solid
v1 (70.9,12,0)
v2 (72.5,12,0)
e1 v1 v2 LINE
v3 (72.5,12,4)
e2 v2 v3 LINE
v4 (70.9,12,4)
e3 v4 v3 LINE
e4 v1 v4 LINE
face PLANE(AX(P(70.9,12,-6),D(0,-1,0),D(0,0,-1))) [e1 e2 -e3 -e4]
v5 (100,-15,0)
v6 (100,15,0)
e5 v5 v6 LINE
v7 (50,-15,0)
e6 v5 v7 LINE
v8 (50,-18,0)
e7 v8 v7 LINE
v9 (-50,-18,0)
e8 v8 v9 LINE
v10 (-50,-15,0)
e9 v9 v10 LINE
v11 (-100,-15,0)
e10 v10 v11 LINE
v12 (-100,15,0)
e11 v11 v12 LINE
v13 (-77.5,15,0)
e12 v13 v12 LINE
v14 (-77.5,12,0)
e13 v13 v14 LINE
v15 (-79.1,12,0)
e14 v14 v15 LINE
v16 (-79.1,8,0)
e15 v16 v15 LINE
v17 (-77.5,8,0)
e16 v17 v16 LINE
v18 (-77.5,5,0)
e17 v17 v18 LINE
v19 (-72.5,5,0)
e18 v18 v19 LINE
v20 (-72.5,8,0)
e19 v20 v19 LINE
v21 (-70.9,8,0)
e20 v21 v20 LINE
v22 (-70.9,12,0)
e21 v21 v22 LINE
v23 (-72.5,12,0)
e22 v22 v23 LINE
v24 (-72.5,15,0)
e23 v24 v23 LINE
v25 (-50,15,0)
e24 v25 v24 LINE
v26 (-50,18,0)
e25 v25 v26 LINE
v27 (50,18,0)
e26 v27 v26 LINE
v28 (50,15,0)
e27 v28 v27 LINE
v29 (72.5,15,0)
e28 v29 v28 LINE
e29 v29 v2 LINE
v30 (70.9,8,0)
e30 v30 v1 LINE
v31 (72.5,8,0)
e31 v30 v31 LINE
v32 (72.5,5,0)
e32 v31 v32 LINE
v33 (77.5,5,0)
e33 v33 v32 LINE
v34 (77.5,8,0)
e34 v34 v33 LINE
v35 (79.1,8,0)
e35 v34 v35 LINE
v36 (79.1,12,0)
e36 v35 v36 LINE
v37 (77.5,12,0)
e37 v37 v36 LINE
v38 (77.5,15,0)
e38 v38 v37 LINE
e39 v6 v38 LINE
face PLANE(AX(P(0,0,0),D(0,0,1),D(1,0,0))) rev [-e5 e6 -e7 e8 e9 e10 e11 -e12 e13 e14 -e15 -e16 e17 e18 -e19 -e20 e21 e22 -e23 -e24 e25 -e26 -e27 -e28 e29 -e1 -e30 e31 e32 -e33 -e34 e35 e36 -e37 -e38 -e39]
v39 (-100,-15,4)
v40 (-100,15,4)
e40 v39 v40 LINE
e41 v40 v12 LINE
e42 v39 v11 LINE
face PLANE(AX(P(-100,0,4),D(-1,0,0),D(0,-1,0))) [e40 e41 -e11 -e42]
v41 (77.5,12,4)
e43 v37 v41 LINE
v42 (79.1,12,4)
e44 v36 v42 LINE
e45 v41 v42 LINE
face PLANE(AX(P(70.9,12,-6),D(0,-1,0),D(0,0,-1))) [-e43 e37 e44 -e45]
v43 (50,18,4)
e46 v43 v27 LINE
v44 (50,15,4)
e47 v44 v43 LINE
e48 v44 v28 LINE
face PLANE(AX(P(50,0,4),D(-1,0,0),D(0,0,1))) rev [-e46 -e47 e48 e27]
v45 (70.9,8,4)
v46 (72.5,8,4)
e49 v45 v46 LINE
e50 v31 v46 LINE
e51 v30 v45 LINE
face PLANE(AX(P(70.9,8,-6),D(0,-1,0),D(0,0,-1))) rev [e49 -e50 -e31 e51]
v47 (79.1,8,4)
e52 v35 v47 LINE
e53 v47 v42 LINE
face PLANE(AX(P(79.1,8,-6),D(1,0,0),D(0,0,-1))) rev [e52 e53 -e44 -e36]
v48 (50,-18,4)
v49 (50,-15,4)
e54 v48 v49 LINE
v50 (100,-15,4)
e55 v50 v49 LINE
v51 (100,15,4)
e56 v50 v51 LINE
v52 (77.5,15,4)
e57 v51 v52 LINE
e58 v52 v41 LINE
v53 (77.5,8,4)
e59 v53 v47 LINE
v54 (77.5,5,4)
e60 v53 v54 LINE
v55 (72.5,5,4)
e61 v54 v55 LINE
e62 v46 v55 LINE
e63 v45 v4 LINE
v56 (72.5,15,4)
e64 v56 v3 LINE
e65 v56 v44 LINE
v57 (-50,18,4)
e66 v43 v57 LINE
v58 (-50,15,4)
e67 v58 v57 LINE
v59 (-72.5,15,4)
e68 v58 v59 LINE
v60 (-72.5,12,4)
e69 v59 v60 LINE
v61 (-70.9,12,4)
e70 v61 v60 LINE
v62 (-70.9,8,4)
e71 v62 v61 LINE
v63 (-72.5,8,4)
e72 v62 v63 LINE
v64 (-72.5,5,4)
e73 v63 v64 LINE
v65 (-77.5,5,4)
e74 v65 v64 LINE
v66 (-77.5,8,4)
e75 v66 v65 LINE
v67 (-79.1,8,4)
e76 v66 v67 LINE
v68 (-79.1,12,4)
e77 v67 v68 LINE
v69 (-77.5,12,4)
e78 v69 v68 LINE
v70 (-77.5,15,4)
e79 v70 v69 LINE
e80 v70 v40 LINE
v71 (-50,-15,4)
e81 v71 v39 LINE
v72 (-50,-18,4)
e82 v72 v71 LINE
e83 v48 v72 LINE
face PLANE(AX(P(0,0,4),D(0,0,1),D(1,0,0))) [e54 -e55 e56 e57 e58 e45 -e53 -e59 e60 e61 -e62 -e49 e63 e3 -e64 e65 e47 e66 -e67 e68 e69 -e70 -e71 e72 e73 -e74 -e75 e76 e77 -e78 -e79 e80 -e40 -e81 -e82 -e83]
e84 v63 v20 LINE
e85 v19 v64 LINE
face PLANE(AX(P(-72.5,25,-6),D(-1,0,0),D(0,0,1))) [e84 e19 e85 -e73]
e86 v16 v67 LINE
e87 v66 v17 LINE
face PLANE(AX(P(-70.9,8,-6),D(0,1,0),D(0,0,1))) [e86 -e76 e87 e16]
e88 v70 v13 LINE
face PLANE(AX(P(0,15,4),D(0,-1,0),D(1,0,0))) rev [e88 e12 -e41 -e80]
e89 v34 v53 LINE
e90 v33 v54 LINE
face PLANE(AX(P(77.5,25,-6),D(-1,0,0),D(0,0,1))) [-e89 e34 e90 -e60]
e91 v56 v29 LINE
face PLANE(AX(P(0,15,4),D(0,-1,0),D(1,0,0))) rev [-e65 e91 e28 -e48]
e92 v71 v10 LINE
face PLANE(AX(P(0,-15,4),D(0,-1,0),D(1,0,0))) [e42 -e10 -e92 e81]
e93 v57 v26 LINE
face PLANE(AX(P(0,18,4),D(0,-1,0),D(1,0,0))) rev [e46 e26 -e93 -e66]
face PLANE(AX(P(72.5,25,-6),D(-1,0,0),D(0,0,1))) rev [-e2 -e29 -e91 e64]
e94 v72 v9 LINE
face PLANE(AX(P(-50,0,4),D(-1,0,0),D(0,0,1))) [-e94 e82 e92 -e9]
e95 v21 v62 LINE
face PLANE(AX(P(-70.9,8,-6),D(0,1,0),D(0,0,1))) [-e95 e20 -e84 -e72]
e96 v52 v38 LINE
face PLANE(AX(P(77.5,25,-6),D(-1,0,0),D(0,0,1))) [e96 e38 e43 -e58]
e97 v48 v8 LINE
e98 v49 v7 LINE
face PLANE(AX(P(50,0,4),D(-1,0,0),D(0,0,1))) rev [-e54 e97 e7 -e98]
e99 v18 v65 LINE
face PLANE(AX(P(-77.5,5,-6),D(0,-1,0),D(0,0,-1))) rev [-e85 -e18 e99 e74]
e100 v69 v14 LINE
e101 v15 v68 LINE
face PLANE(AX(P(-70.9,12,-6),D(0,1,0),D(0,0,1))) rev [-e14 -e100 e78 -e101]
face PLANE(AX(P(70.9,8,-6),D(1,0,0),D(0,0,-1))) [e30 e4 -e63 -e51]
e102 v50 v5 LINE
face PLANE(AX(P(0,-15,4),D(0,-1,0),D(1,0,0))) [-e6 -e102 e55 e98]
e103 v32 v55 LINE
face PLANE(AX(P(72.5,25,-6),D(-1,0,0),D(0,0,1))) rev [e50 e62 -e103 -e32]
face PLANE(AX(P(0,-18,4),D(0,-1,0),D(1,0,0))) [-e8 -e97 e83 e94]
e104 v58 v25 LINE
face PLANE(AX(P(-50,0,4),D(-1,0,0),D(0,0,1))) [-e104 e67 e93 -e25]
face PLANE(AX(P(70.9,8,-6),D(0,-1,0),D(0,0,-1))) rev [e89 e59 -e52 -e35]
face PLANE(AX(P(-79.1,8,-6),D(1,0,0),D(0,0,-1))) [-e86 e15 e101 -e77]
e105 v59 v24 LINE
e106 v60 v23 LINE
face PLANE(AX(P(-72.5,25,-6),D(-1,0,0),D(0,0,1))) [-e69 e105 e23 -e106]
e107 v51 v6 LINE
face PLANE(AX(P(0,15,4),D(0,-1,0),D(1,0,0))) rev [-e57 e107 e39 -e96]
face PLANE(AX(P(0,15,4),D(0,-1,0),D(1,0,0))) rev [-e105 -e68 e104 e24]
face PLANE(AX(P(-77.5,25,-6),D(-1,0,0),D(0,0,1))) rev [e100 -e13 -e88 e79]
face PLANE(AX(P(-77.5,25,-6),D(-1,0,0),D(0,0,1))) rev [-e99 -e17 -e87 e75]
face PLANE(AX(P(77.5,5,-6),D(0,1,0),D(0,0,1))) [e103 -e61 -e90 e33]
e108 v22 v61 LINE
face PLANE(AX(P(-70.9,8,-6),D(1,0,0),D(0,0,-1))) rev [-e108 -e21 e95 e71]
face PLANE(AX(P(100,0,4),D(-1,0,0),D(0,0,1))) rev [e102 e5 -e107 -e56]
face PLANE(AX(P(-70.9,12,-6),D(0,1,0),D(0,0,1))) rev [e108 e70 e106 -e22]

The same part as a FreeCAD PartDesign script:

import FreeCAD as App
import Part
import Sketcher
Q = App.Units.Quantity

doc = App.newDocument("Part")
params = doc.addObject("Spreadsheet::Sheet", "Params")
for row, (alias, value) in enumerate([
    ("sketch1_width", "50 mm"),
    ("sketch1_width2", "100 mm"),
    ("sketch1_height", "30 mm"),
    ("sketch1_height2", "3 mm"),
    ("pad1_length", "4 mm"),
    ("sketch2_width", "5 mm"),
    ("sketch2_height", "3 mm"),
    ("sketch2_height2", "4 mm"),
    ("sketch2_height3", "13 mm"),
    ("sketch2_width2", "1.6 mm"),
    ("pocket1_length", "10 mm"),
], start=1):
    params.set(f"A{row}", alias)
    params.set(f"B{row}", "=" + value)
    params.setAlias(f"B{row}", alias)

body = doc.addObject("PartDesign::Body", "Body")

sketch1 = body.newObject("Sketcher::SketchObject", "Sketch")
sketch1.AttachmentSupport = (doc.getObject("XY_Plane"), [""])
sketch1.MapMode = "FlatFace"
sketch1.addGeometry([
    Part.LineSegment(App.Vector(-100, 15, 0), App.Vector(-100, -15, 0)),
    Part.LineSegment(App.Vector(-100, -15, 0), App.Vector(-50, -15, 0)),
    Part.LineSegment(App.Vector(-50, -15, 0), App.Vector(-50, -18, 0)),
    Part.LineSegment(App.Vector(-50, -18, 0), App.Vector(50, -18, 0)),
    Part.LineSegment(App.Vector(50, -18, 0), App.Vector(50, -15, 0)),
    Part.LineSegment(App.Vector(50, -15, 0), App.Vector(100, -15, 0)),
    Part.LineSegment(App.Vector(100, -15, 0), App.Vector(100, 15, 0)),
    Part.LineSegment(App.Vector(100, 15, 0), App.Vector(50, 15, 0)),
    Part.LineSegment(App.Vector(50, 15, 0), App.Vector(50, 18, 0)),
    Part.LineSegment(App.Vector(50, 18, 0), App.Vector(-50, 18, 0)),
    Part.LineSegment(App.Vector(-50, 18, 0), App.Vector(-50, 15, 0)),
    Part.LineSegment(App.Vector(-50, 15, 0), App.Vector(-100, 15, 0)),
], False)
sketch1.addConstraint([
    Sketcher.Constraint("Coincident", 0, 2, 1, 1),
    Sketcher.Constraint("Coincident", 1, 2, 2, 1),
    Sketcher.Constraint("Coincident", 2, 2, 3, 1),
    Sketcher.Constraint("Coincident", 3, 2, 4, 1),
    Sketcher.Constraint("Coincident", 4, 2, 5, 1),
    Sketcher.Constraint("Coincident", 5, 2, 6, 1),
    Sketcher.Constraint("Coincident", 6, 2, 7, 1),
    Sketcher.Constraint("Coincident", 7, 2, 8, 1),
    Sketcher.Constraint("Coincident", 8, 2, 9, 1),
    Sketcher.Constraint("Coincident", 9, 2, 10, 1),
    Sketcher.Constraint("Coincident", 10, 2, 11, 1),
    Sketcher.Constraint("Coincident", 11, 2, 0, 1),
    Sketcher.Constraint("Vertical", 0),
    Sketcher.Constraint("Horizontal", 1),
    Sketcher.Constraint("Vertical", 2),
    Sketcher.Constraint("Horizontal", 3),
    Sketcher.Constraint("Vertical", 4),
    Sketcher.Constraint("Horizontal", 5),
    Sketcher.Constraint("Vertical", 6),
    Sketcher.Constraint("Horizontal", 7),
    Sketcher.Constraint("Vertical", 8),
    Sketcher.Constraint("Horizontal", 9),
    Sketcher.Constraint("Vertical", 10),
    Sketcher.Constraint("Horizontal", 11),
    Sketcher.Constraint("Symmetric", 0, 2, 6, 2, -1, 1),
    Sketcher.Constraint("Symmetric", 2, 2, 8, 2, -1, 1),
    Sketcher.Constraint("Symmetric", 4, 2, 10, 2, -1, 1),
    Sketcher.Constraint("Symmetric", 1, 2, 4, 2, -2),
    Sketcher.Constraint("DistanceX", 1, 1, 1, 2, Q("50 mm")),
    Sketcher.Constraint("DistanceX", 3, 1, 3, 2, Q("100 mm")),
    Sketcher.Constraint("DistanceY", 0, 2, 0, 1, Q("30 mm")),
    Sketcher.Constraint("DistanceY", 2, 2, 2, 1, Q("3 mm")),
])
sketch1.setExpression("Constraints[28]", "Params.sketch1_width")
sketch1.setExpression("Constraints[29]", "Params.sketch1_width2")
sketch1.setExpression("Constraints[30]", "Params.sketch1_height")
sketch1.setExpression("Constraints[31]", "Params.sketch1_height2")
pad1 = body.newObject("PartDesign::Pad", "Pad")
pad1.Profile = sketch1
pad1.setExpression("Length", "Params.pad1_length")

sketch2 = body.newObject("Sketcher::SketchObject", "Sketch001")
sketch2.AttachmentSupport = (doc.getObject("XY_Plane"), [""])
sketch2.MapMode = "FlatFace"
sketch2.AttachmentOffset = App.Placement(App.Vector(0, 0, 4), App.Rotation())
sketch2.addGeometry([
    Part.LineSegment(App.Vector(-77.5, 8, 0), App.Vector(-77.5, 5, 0)),
    Part.LineSegment(App.Vector(-77.5, 5, 0), App.Vector(-72.5, 5, 0)),
    Part.LineSegment(App.Vector(-72.5, 5, 0), App.Vector(-72.5, 8, 0)),
    Part.LineSegment(App.Vector(-72.5, 8, 0), App.Vector(-70.9, 8, 0)),
    Part.LineSegment(App.Vector(-70.9, 8, 0), App.Vector(-70.9, 12, 0)),
    Part.LineSegment(App.Vector(-70.9, 12, 0), App.Vector(-72.5, 12, 0)),
    Part.LineSegment(App.Vector(-72.5, 12, 0), App.Vector(-72.5, 25, 0)),
    Part.LineSegment(App.Vector(-72.5, 25, 0), App.Vector(-77.5, 25, 0)),
    Part.LineSegment(App.Vector(-77.5, 25, 0), App.Vector(-77.5, 12, 0)),
    Part.LineSegment(App.Vector(-77.5, 12, 0), App.Vector(-79.1, 12, 0)),
    Part.LineSegment(App.Vector(-79.1, 12, 0), App.Vector(-79.1, 8, 0)),
    Part.LineSegment(App.Vector(-79.1, 8, 0), App.Vector(-77.5, 8, 0)),
], False)
sketch2.addConstraint([
    Sketcher.Constraint("Coincident", 0, 2, 1, 1),
    Sketcher.Constraint("Coincident", 1, 2, 2, 1),
    Sketcher.Constraint("Coincident", 2, 2, 3, 1),
    Sketcher.Constraint("Coincident", 3, 2, 4, 1),
    Sketcher.Constraint("Coincident", 4, 2, 5, 1),
    Sketcher.Constraint("Coincident", 5, 2, 6, 1),
    Sketcher.Constraint("Coincident", 6, 2, 7, 1),
    Sketcher.Constraint("Coincident", 7, 2, 8, 1),
    Sketcher.Constraint("Coincident", 8, 2, 9, 1),
    Sketcher.Constraint("Coincident", 9, 2, 10, 1),
    Sketcher.Constraint("Coincident", 10, 2, 11, 1),
    Sketcher.Constraint("Coincident", 11, 2, 0, 1),
    Sketcher.Constraint("Vertical", 0),
    Sketcher.Constraint("Horizontal", 1),
    Sketcher.Constraint("Vertical", 2),
    Sketcher.Constraint("Horizontal", 3),
    Sketcher.Constraint("Vertical", 4),
    Sketcher.Constraint("Horizontal", 5),
    Sketcher.Constraint("Vertical", 6),
    Sketcher.Constraint("Horizontal", 7),
    Sketcher.Constraint("Vertical", 8),
    Sketcher.Constraint("Horizontal", 9),
    Sketcher.Constraint("Vertical", 10),
    Sketcher.Constraint("Horizontal", 11),
    Sketcher.Constraint("Horizontal", 5, 2, 8, 2),
    Sketcher.Constraint("Horizontal", 3, 2, 10, 2),
    Sketcher.Constraint("Vertical", 2, 2, 5, 2),
    Sketcher.Constraint("Vertical", 0, 2, 7, 2),
    Sketcher.Constraint("Equal", 5, 9),
    Sketcher.Constraint("DistanceX", 1, 1, 1, 2, Q("5 mm")),
    Sketcher.Constraint("DistanceY", 0, 2, 0, 1, Q("3 mm")),
    Sketcher.Constraint("DistanceY", 4, 1, 4, 2, Q("4 mm")),
    Sketcher.Constraint("DistanceY", 6, 1, 6, 2, Q("13 mm")),
    Sketcher.Constraint("DistanceX", 3, 1, 3, 2, Q("1.6 mm")),
    Sketcher.Constraint("DistanceY", -1, 1, 0, 2, Q("5 mm")),
    Sketcher.Constraint("DistanceX", 0, 2, -1, 1, Q("77.5 mm")),
])
sketch2.setExpression("Constraints[29]", "Params.sketch2_width")
sketch2.setExpression("Constraints[30]", "Params.sketch2_height")
sketch2.setExpression("Constraints[31]", "Params.sketch2_height2")
sketch2.setExpression("Constraints[32]", "Params.sketch2_height3")
sketch2.setExpression("Constraints[33]", "Params.sketch2_width2")
pocket1 = body.newObject("PartDesign::Pocket", "Pocket")
pocket1.Profile = sketch2
pocket1.setExpression("Length", "Params.pocket1_length")
doc.recompute()

mirrored = body.newObject("PartDesign::Mirrored", "Mirrored")
mirrored.Originals = [pocket1]
mirrored.MirrorPlane = (doc.getObject("YZ_Plane"), [""])
body.Tip = mirrored

doc.recompute()
